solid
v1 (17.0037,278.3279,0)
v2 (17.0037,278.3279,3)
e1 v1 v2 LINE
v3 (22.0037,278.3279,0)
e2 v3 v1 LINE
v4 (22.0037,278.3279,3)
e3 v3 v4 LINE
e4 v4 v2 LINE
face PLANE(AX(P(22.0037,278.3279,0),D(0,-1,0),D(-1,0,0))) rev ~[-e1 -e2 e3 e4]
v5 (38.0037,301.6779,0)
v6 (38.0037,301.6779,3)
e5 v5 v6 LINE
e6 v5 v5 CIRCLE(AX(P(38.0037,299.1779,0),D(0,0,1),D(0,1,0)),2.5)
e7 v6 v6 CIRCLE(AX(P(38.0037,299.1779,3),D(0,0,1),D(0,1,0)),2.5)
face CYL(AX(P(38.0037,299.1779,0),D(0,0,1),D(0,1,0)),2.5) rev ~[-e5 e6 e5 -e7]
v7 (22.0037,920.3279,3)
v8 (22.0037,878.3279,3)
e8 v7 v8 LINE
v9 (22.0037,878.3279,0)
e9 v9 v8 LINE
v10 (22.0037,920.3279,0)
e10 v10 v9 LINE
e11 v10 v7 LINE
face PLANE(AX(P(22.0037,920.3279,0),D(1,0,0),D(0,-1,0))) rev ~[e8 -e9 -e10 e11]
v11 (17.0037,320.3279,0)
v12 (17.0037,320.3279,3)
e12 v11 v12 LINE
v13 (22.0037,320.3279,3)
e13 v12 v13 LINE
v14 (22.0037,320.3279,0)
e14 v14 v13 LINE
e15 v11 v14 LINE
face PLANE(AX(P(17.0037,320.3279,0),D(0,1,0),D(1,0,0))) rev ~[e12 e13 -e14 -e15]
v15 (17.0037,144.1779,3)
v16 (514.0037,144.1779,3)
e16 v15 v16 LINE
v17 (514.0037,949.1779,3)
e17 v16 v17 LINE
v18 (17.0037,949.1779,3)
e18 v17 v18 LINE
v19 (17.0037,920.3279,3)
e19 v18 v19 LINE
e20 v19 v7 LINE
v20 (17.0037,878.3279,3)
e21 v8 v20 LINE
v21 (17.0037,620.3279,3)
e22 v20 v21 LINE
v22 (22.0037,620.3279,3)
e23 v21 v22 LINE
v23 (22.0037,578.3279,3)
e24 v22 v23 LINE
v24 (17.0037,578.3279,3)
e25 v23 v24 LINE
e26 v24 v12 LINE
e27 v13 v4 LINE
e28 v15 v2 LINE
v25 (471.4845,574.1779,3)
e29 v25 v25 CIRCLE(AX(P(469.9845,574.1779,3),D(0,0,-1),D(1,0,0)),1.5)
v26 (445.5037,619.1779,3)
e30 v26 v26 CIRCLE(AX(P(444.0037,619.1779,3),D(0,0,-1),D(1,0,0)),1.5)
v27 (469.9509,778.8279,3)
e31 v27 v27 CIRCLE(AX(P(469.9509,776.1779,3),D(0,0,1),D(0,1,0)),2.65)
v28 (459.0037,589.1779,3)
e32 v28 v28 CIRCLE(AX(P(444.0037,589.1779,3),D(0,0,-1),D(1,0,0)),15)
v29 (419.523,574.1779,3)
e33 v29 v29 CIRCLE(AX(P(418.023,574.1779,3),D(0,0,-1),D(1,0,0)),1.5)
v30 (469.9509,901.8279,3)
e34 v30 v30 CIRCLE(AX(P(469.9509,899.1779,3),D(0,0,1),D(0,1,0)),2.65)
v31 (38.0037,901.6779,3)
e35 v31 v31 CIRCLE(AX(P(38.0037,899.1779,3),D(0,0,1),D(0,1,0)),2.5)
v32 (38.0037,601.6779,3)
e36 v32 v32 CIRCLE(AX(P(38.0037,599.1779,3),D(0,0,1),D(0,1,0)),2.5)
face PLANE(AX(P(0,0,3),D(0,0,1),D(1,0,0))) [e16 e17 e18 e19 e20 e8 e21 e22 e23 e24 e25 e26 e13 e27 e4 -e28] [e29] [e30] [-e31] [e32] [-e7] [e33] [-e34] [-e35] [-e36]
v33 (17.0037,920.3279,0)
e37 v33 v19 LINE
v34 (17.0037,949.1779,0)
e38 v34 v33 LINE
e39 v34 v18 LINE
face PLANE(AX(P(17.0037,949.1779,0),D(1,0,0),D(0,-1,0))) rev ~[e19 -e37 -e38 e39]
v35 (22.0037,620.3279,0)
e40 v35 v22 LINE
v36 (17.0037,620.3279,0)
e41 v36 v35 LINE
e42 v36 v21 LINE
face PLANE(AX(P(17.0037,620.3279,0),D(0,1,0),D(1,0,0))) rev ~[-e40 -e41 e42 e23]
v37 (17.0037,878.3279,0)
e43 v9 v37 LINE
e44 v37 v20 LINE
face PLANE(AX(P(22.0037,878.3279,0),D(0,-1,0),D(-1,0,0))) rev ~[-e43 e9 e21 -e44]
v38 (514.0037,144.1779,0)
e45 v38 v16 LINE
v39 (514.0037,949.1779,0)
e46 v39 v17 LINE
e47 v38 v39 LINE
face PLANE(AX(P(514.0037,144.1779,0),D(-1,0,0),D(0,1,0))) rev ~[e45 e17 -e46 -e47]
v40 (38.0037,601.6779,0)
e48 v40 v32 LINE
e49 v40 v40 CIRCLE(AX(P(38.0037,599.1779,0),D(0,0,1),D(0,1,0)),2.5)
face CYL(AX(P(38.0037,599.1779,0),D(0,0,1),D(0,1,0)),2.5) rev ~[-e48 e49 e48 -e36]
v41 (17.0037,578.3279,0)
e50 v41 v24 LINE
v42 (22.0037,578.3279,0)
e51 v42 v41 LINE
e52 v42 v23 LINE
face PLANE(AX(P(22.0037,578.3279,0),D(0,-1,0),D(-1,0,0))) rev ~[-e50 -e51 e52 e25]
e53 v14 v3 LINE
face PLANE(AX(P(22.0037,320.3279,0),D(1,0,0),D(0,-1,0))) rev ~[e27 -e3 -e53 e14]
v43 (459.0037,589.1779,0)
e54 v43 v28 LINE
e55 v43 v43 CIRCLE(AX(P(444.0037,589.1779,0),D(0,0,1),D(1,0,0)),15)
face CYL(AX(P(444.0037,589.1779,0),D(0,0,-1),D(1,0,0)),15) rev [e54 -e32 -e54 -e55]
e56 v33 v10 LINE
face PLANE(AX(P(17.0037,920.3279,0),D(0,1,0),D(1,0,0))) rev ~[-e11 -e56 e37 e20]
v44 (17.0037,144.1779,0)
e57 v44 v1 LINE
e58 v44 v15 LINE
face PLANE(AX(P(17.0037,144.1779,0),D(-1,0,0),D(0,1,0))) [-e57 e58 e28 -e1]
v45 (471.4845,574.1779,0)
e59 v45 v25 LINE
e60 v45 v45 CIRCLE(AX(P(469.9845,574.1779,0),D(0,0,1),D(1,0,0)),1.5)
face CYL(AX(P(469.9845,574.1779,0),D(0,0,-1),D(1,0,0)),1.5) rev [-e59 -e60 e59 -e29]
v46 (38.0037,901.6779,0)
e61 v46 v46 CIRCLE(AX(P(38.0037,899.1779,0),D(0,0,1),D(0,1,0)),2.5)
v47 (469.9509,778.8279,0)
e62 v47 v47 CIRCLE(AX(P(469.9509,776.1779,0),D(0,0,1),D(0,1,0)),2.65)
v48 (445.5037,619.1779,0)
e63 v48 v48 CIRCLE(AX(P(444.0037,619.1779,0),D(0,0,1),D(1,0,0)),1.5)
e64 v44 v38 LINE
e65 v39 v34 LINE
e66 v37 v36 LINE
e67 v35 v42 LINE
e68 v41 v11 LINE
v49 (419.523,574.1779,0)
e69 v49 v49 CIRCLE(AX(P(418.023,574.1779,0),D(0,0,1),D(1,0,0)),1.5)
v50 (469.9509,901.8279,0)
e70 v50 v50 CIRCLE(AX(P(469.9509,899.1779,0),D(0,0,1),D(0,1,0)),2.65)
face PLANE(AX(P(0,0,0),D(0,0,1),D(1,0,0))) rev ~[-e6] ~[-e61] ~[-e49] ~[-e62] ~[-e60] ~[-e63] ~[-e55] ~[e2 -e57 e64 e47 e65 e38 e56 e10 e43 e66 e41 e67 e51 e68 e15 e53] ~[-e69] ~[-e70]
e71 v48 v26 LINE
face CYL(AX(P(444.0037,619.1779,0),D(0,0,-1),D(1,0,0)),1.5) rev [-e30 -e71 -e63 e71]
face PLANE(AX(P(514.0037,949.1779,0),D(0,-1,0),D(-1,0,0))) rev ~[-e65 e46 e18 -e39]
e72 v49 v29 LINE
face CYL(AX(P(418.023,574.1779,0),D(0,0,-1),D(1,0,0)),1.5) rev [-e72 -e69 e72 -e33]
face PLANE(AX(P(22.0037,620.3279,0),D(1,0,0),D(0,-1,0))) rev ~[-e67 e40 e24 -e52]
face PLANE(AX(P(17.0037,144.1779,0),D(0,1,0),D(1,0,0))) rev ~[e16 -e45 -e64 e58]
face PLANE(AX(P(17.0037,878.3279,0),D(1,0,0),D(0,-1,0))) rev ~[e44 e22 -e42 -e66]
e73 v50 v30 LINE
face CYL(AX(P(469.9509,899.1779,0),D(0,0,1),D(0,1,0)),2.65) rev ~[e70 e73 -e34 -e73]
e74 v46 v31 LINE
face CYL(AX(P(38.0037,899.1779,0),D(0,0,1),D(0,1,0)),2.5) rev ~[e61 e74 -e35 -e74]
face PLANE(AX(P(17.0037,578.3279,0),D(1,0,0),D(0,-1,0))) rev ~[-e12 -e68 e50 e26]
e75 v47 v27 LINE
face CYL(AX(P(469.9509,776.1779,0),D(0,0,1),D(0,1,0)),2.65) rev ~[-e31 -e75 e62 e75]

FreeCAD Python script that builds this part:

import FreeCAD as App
import Part
import Sketcher
Q = App.Units.Quantity

doc = App.newDocument("Part")
body = doc.addObject("PartDesign::Body", "Body")

# Sketch on XY plane
sketch1 = body.newObject("Sketcher::SketchObject", "Sketch")
sketch1.AttachmentSupport = (doc.getObject("XY_Plane"), [""])
sketch1.MapMode = "FlatFace"
sketch1.addGeometry([
    Part.LineSegment(App.Vector(17.0037, 278.3279, 0), App.Vector(17.0037, 144.1779, 0)),  # 0
    Part.LineSegment(App.Vector(17.0037, 144.1779, 0), App.Vector(514.0037, 144.1779, 0)),  # 1
    Part.LineSegment(App.Vector(514.0037, 144.1779, 0), App.Vector(514.0037, 949.1779, 0)),  # 2
    Part.LineSegment(App.Vector(514.0037, 949.1779, 0), App.Vector(17.0037, 949.1779, 0)),  # 3
    Part.LineSegment(App.Vector(17.0037, 949.1779, 0), App.Vector(17.0037, 920.3279, 0)),  # 4
    Part.LineSegment(App.Vector(17.0037, 920.3279, 0), App.Vector(22.0037, 920.3279, 0)),  # 5
    Part.LineSegment(App.Vector(22.0037, 920.3279, 0), App.Vector(22.0037, 878.3279, 0)),  # 6
    Part.LineSegment(App.Vector(22.0037, 878.3279, 0), App.Vector(17.0037, 878.3279, 0)),  # 7
    Part.LineSegment(App.Vector(17.0037, 878.3279, 0), App.Vector(17.0037, 620.3279, 0)),  # 8
    Part.LineSegment(App.Vector(17.0037, 620.3279, 0), App.Vector(22.0037, 620.3279, 0)),  # 9
    Part.LineSegment(App.Vector(22.0037, 620.3279, 0), App.Vector(22.0037, 578.3279, 0)),  # 10
    Part.LineSegment(App.Vector(22.0037, 578.3279, 0), App.Vector(17.0037, 578.3279, 0)),  # 11
    Part.LineSegment(App.Vector(17.0037, 578.3279, 0), App.Vector(17.0037, 320.3279, 0)),  # 12
    Part.LineSegment(App.Vector(17.0037, 320.3279, 0), App.Vector(22.0037, 320.3279, 0)),  # 13
    Part.LineSegment(App.Vector(22.0037, 320.3279, 0), App.Vector(22.0037, 278.3279, 0)),  # 14
    Part.LineSegment(App.Vector(22.0037, 278.3279, 0), App.Vector(17.0037, 278.3279, 0)),  # 15
], False)
sketch1.addConstraint([
    Sketcher.Constraint("Coincident", 0, 2, 1, 1),
    Sketcher.Constraint("Coincident", 1, 2, 2, 1),
    Sketcher.Constraint("Coincident", 2, 2, 3, 1),
    Sketcher.Constraint("Coincident", 3, 2, 4, 1),
    Sketcher.Constraint("Coincident", 4, 2, 5, 1),
    Sketcher.Constraint("Coincident", 5, 2, 6, 1),
    Sketcher.Constraint("Coincident", 6, 2, 7, 1),
    Sketcher.Constraint("Coincident", 7, 2, 8, 1),
    Sketcher.Constraint("Coincident", 8, 2, 9, 1),
    Sketcher.Constraint("Coincident", 9, 2, 10, 1),
    Sketcher.Constraint("Coincident", 10, 2, 11, 1),
    Sketcher.Constraint("Coincident", 11, 2, 12, 1),
    Sketcher.Constraint("Coincident", 12, 2, 13, 1),
    Sketcher.Constraint("Coincident", 13, 2, 14, 1),
    Sketcher.Constraint("Coincident", 14, 2, 15, 1),
    Sketcher.Constraint("Coincident", 15, 2, 0, 1),
    Sketcher.Constraint("Vertical", 0),
    Sketcher.Constraint("Horizontal", 1),
    Sketcher.Constraint("Vertical", 2),
    Sketcher.Constraint("Horizontal", 3),
    Sketcher.Constraint("Vertical", 4),
    Sketcher.Constraint("Horizontal", 5),
    Sketcher.Constraint("Vertical", 6),
    Sketcher.Constraint("Horizontal", 7),
    Sketcher.Constraint("Vertical", 8),
    Sketcher.Constraint("Horizontal", 9),
    Sketcher.Constraint("Vertical", 10),
    Sketcher.Constraint("Horizontal", 11),
    Sketcher.Constraint("Vertical", 12),
    Sketcher.Constraint("Horizontal", 13),
    Sketcher.Constraint("Vertical", 14),
    Sketcher.Constraint("Horizontal", 15),
    Sketcher.Constraint("Vertical", 0, 2, 3, 2),
    Sketcher.Constraint("Vertical", 4, 2, 7, 2),
    Sketcher.Constraint("Vertical", 6, 2, 9, 2),
    Sketcher.Constraint("Vertical", 8, 2, 11, 2),
    Sketcher.Constraint("Vertical", 10, 2, 13, 2),
    Sketcher.Constraint("Equal", 6, 10),
    Sketcher.Constraint("Equal", 8, 12),
    Sketcher.Constraint("Equal", 10, 14),
    Sketcher.Constraint("DistanceX", 1, 1, 1, 2, Q("497 mm")),
    Sketcher.Constraint("DistanceX", 5, 1, 5, 2, Q("5 mm")),
    Sketcher.Constraint("DistanceY", 2, 1, 2, 2, Q("805 mm")),
    Sketcher.Constraint("DistanceY", 6, 2, 6, 1, Q("42 mm")),
    Sketcher.Constraint("DistanceY", 8, 2, 8, 1, Q("258 mm")),
    Sketcher.Constraint("DistanceY", 4, 2, 4, 1, Q("28.85 mm")),
    Sketcher.Constraint("DistanceY", -1, 1, 0, 2, Q("144.178 mm")),
    Sketcher.Constraint("DistanceX", -1, 1, 0, 2, Q("17.0037 mm")),
])
pad1 = body.newObject("PartDesign::Pad", "Pad")
pad1.Profile = sketch1
pad1.Length = 3

# Sketch on XY plane
sketch2 = body.newObject("Sketcher::SketchObject", "Sketch001")
sketch2.AttachmentSupport = (doc.getObject("XY_Plane"), [""])
sketch2.MapMode = "FlatFace"
sketch2.addGeometry(Part.Circle(App.Vector(38.0037, 899.1779, 0), App.Vector(0, 0, 1), 2.5), False)
sketch2.addConstraint([
    Sketcher.Constraint("Diameter", 0, Q("5 mm")),
    Sketcher.Constraint("DistanceY", -1, 1, 0, 3, Q("899.178 mm")),
    Sketcher.Constraint("DistanceX", -1, 1, 0, 3, Q("38.0037 mm")),
])
doc.recompute()
hole = body.newObject("PartDesign::Hole", "Hole")
hole.Profile = sketch2
hole.ThreadType = "None"
hole.Diameter = 5
hole.DepthType = "ThroughAll"
hole.Reversed = True

# Sketch on XY plane
sketch3 = body.newObject("Sketcher::SketchObject", "Sketch002")
sketch3.AttachmentSupport = (doc.getObject("XY_Plane"), [""])
sketch3.MapMode = "FlatFace"
sketch3.addGeometry(Part.Circle(App.Vector(38.0037, 599.1779, 0), App.Vector(0, 0, 1), 2.5), False)
sketch3.addConstraint([
    Sketcher.Constraint("Diameter", 0, Q("5 mm")),
    Sketcher.Constraint("DistanceY", -1, 1, 0, 3, Q("599.178 mm")),
    Sketcher.Constraint("DistanceX", -1, 1, 0, 3, Q("38.0037 mm")),
])
doc.recompute()
hole2 = body.newObject("PartDesign::Hole", "Hole001")
hole2.Profile = sketch3
hole2.ThreadType = "None"
hole2.Diameter = 5
hole2.DepthType = "ThroughAll"
hole2.Reversed = True

# Sketch on XY plane
sketch4 = body.newObject("Sketcher::SketchObject", "Sketch003")
sketch4.AttachmentSupport = (doc.getObject("XY_Plane"), [""])
sketch4.MapMode = "FlatFace"
sketch4.addGeometry(Part.Circle(App.Vector(38.0037, 299.1779, 0), App.Vector(0, 0, 1), 2.5), False)
sketch4.addConstraint([
    Sketcher.Constraint("Diameter", 0, Q("5 mm")),
    Sketcher.Constraint("DistanceY", -1, 1, 0, 3, Q("299.178 mm")),
    Sketcher.Constraint("DistanceX", -1, 1, 0, 3, Q("38.0037 mm")),
])
doc.recompute()
hole3 = body.newObject("PartDesign::Hole", "Hole002")
hole3.Profile = sketch4
hole3.ThreadType = "None"
hole3.Diameter = 5
hole3.DepthType = "ThroughAll"
hole3.Reversed = True

# Sketch on XY plane
sketch5 = body.newObject("Sketcher::SketchObject", "Sketch004")
sketch5.AttachmentSupport = (doc.getObject("XY_Plane"), [""])
sketch5.MapMode = "FlatFace"
sketch5.addGeometry(Part.Circle(App.Vector(469.9509, 776.1779, 0), App.Vector(0, 0, 1), 2.65), False)
sketch5.addConstraint([
    Sketcher.Constraint("Diameter", 0, Q("5.3 mm")),
    Sketcher.Constraint("DistanceX", -1, 1, 0, 3, Q("469.951 mm")),
    Sketcher.Constraint("DistanceY", -1, 1, 0, 3, Q("776.178 mm")),
])
doc.recompute()
hole4 = body.newObject("PartDesign::Hole", "Hole003")
hole4.Profile = sketch5
hole4.ThreadType = "None"
hole4.Diameter = 5.3
hole4.DepthType = "ThroughAll"
hole4.Reversed = True

# Sketch on XY plane
sketch6 = body.newObject("Sketcher::SketchObject", "Sketch005")
sketch6.AttachmentSupport = (doc.getObject("XY_Plane"), [""])
sketch6.MapMode = "FlatFace"
sketch6.addGeometry(Part.Circle(App.Vector(469.9509, 899.1779, 0), App.Vector(0, 0, 1), 2.65), False)
sketch6.addConstraint([
    Sketcher.Constraint("Diameter", 0, Q("5.3 mm")),
    Sketcher.Constraint("DistanceX", -1, 1, 0, 3, Q("469.951 mm")),
    Sketcher.Constraint("DistanceY", -1, 1, 0, 3, Q("899.178 mm")),
])
doc.recompute()
hole5 = body.newObject("PartDesign::Hole", "Hole004")
hole5.Profile = sketch6
hole5.ThreadType = "None"
hole5.Diameter = 5.3
hole5.DepthType = "ThroughAll"
hole5.Reversed = True

# Sketch on XY plane
sketch7 = body.newObject("Sketcher::SketchObject", "Sketch006")
sketch7.AttachmentSupport = (doc.getObject("XY_Plane"), [""])
sketch7.MapMode = "FlatFace"
sketch7.addGeometry(Part.Circle(App.Vector(444.0037, 589.1779, 0), App.Vector(0, 0, 1), 15), False)
sketch7.addConstraint([
    Sketcher.Constraint("Diameter", 0, Q("30 mm")),
    Sketcher.Constraint("DistanceY", -1, 1, 0, 3, Q("589.178 mm")),
    Sketcher.Constraint("DistanceX", -1, 1, 0, 3, Q("444.0037 mm")),
])
pocket1 = body.newObject("PartDesign::Pocket", "Pocket")
pocket1.Profile = sketch7
pocket1.Length = 10
pocket1.Reversed = True

# Sketch on XY plane
sketch8 = body.newObject("Sketcher::SketchObject", "Sketch007")
sketch8.AttachmentSupport = (doc.getObject("XY_Plane"), [""])
sketch8.MapMode = "FlatFace"
sketch8.addGeometry(Part.Circle(App.Vector(444.0037, 619.1779, 0), App.Vector(0, 0, 1), 1.5), False)
sketch8.addConstraint([
    Sketcher.Constraint("Diameter", 0, Q("3 mm")),
    Sketcher.Constraint("DistanceY", -1, 1, 0, 3, Q("619.178 mm")),
    Sketcher.Constraint("DistanceX", -1, 1, 0, 3, Q("444.0037 mm")),
])
pocket2 = body.newObject("PartDesign::Pocket", "Pocket001")
pocket2.Profile = sketch8
pocket2.Length = 10
pocket2.Reversed = True

# Sketch on XY plane
sketch9 = body.newObject("Sketcher::SketchObject", "Sketch008")
sketch9.AttachmentSupport = (doc.getObject("XY_Plane"), [""])
sketch9.MapMode = "FlatFace"
sketch9.addGeometry(Part.Circle(App.Vector(418.023, 574.1779, 0), App.Vector(0, 0, 1), 1.5), False)
sketch9.addConstraint([
    Sketcher.Constraint("Diameter", 0, Q("3 mm")),
    Sketcher.Constraint("DistanceX", -1, 1, 0, 3, Q("418.023 mm")),
    Sketcher.Constraint("DistanceY", -1, 1, 0, 3, Q("574.178 mm")),
])
pocket3 = body.newObject("PartDesign::Pocket", "Pocket002")
pocket3.Profile = sketch9
pocket3.Length = 10
pocket3.Reversed = True

# Sketch on XY plane
sketch10 = body.newObject("Sketcher::SketchObject", "Sketch009")
sketch10.AttachmentSupport = (doc.getObject("XY_Plane"), [""])
sketch10.MapMode = "FlatFace"
sketch10.addGeometry(Part.Circle(App.Vector(469.9845, 574.1779, 0), App.Vector(0, 0, 1), 1.5), False)
sketch10.addConstraint([
    Sketcher.Constraint("Diameter", 0, Q("3 mm")),
    Sketcher.Constraint("DistanceY", -1, 1, 0, 3, Q("574.178 mm")),
    Sketcher.Constraint("DistanceX", -1, 1, 0, 3, Q("469.9845 mm")),
])
pocket4 = body.newObject("PartDesign::Pocket", "Pocket003")
pocket4.Profile = sketch10
pocket4.Length = 10
pocket4.Reversed = True

doc.recompute()
